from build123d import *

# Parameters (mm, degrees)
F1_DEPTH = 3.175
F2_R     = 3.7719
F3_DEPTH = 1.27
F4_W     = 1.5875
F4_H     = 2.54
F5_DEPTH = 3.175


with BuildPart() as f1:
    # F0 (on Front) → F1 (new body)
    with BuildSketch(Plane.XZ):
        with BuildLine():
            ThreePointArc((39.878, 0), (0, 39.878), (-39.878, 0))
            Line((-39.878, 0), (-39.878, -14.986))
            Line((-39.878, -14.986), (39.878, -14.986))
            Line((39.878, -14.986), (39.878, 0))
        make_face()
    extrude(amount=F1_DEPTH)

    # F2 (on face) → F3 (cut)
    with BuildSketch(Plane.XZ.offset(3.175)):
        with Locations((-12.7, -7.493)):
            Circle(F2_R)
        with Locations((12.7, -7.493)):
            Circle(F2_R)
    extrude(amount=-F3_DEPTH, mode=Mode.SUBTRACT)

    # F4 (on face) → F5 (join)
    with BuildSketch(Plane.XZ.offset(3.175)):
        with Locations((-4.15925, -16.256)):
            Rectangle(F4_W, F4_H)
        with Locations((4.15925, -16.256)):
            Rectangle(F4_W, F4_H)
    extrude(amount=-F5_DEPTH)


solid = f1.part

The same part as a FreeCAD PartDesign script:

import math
import FreeCAD as App
import Part
import Sketcher
from FreeCAD import Vector
Q = App.Units.Quantity

doc = App.newDocument("Part")
params = doc.addObject("Spreadsheet::Sheet", "Params")
for row, (alias, value) in enumerate([
    ("sketch1_radius", "1.57 in"),
    ("sketch1_height", "0.59 in"),
    ("pad1_length", "0.125 in"),
    ("sketch2_diameter", "0.297 in"),
    ("pocket1_length", "0.05 in"),
    ("sketch3_height", "0.1 in"),
    ("sketch3_width", "0.0625 in"),
    ("pad2_length", "0.125 in"),
], start=1):
    params.set(f"A{row}", alias)
    params.set(f"B{row}", "=" + value)
    params.setAlias(f"B{row}", alias)

body = doc.addObject("PartDesign::Body", "Body")

sketch1 = doc.addObject("Sketcher::SketchObject", "Sketch")
body.addObject(sketch1)
sketch1.AttachmentSupport = (doc.XZ_Plane, [""])
sketch1.MapMode = "FlatFace"
sketch1.addGeometry(Part.ArcOfCircle(Part.Circle(Vector(0, 0, 0), Vector(0, 0, 1), 40), math.radians(0), math.radians(180)), False)
sketch1.addGeometry(Part.LineSegment(Vector(-40, 0, 0), Vector(-40, -15, 0)), False)
sketch1.addGeometry(Part.LineSegment(Vector(-40, -15, 0), Vector(40, -15, 0)), False)
sketch1.addGeometry(Part.LineSegment(Vector(40, -15, 0), Vector(40, 0, 0)), False)
sketch1.addConstraint(Sketcher.Constraint("Tangent", 0, 2, 1, 1))
sketch1.addConstraint(Sketcher.Constraint("Coincident", 1, 2, 2, 1))
sketch1.addConstraint(Sketcher.Constraint("Coincident", 2, 2, 3, 1))
sketch1.addConstraint(Sketcher.Constraint("Tangent", 3, 2, 0, 1))
sketch1.addConstraint(Sketcher.Constraint("Vertical", 1))
sketch1.addConstraint(Sketcher.Constraint("Horizontal", 2))
sketch1.addConstraint(Sketcher.Constraint("Vertical", 3))
sketch1.addConstraint(Sketcher.Constraint("Coincident", 0, 3, -1, 1))
sketch1.addConstraint(Sketcher.Constraint("Radius", 0, Q("1.57 in")))
sketch1.addConstraint(Sketcher.Constraint("DistanceY", 1, 2, 1, 1, Q("0.59 in")))
sketch1.setExpression("Constraints[8]", "Params.sketch1_radius")
sketch1.setExpression("Constraints[9]", "Params.sketch1_height")
pad1 = doc.addObject("PartDesign::Pad", "Pad")
body.addObject(pad1)
pad1.Profile = sketch1
pad1.setExpression("Length", "Params.pad1_length")

sketch2 = doc.addObject("Sketcher::SketchObject", "Sketch001")
body.addObject(sketch2)
sketch2.AttachmentSupport = (doc.XZ_Plane, [""])
sketch2.MapMode = "FlatFace"
sketch2.AttachmentOffset = App.Placement(Vector(0, 0, 0.125 * 25.4), App.Rotation())
sketch2.addGeometry(Part.Circle(Vector(-12.7, -7.5, 0), Vector(0, 0, 1), 3.8), False)
sketch2.addGeometry(Part.Circle(Vector(12.7, -7.5, 0), Vector(0, 0, 1), 3.8), False)
sketch2.addConstraint(Sketcher.Constraint("Equal", 0, 1))
sketch2.addConstraint(Sketcher.Constraint("Symmetric", 0, 3, 1, 3, -2))
sketch2.addConstraint(Sketcher.Constraint("Diameter", 0, Q("0.297 in")))
sketch2.addConstraint(Sketcher.Constraint("DistanceX", 0, 3, 1, 3, Q("1 in")))
sketch2.addConstraint(Sketcher.Constraint("DistanceY", 0, 3, -1, 1, Q("0.295 in")))
sketch2.setExpression("Constraints[2]", "Params.sketch2_diameter")
pocket1 = doc.addObject("PartDesign::Pocket", "Pocket")
body.addObject(pocket1)
pocket1.Profile = sketch2
pocket1.setExpression("Length", "Params.pocket1_length")

sketch3 = doc.addObject("Sketcher::SketchObject", "Sketch002")
body.addObject(sketch3)
sketch3.AttachmentSupport = (doc.XZ_Plane, [""])
sketch3.MapMode = "FlatFace"
sketch3.AttachmentOffset = App.Placement(Vector(0, 0, 0.125 * 25.4), App.Rotation())
sketch3.addGeometry(Part.LineSegment(Vector(-5, -15, 0), Vector(-5, -17.5, 0)), False)
sketch3.addGeometry(Part.LineSegment(Vector(-5, -17.5, 0), Vector(-3.4, -17.5, 0)), False)
sketch3.addGeometry(Part.LineSegment(Vector(-3.4, -17.5, 0), Vector(-3.4, -15, 0)), False)
sketch3.addGeometry(Part.LineSegment(Vector(-3.4, -15, 0), Vector(-5, -15, 0)), False)
sketch3.addGeometry(Part.LineSegment(Vector(3.4, -15, 0), Vector(3.4, -17.5, 0)), False)
sketch3.addGeometry(Part.LineSegment(Vector(3.4, -17.5, 0), Vector(5, -17.5, 0)), False)
sketch3.addGeometry(Part.LineSegment(Vector(5, -17.5, 0), Vector(5, -15, 0)), False)
sketch3.addGeometry(Part.LineSegment(Vector(5, -15, 0), Vector(3.4, -15, 0)), False)
sketch3.addConstraint(Sketcher.Constraint("Coincident", 0, 2, 1, 1))
sketch3.addConstraint(Sketcher.Constraint("Coincident", 1, 2, 2, 1))
sketch3.addConstraint(Sketcher.Constraint("Coincident", 2, 2, 3, 1))
sketch3.addConstraint(Sketcher.Constraint("Coincident", 3, 2, 0, 1))
sketch3.addConstraint(Sketcher.Constraint("Coincident", 4, 2, 5, 1))
sketch3.addConstraint(Sketcher.Constraint("Coincident", 5, 2, 6, 1))
sketch3.addConstraint(Sketcher.Constraint("Coincident", 6, 2, 7, 1))
sketch3.addConstraint(Sketcher.Constraint("Coincident", 7, 2, 4, 1))
sketch3.addConstraint(Sketcher.Constraint("Vertical", 0))
sketch3.addConstraint(Sketcher.Constraint("Horizontal", 1))
sketch3.addConstraint(Sketcher.Constraint("Vertical", 2))
sketch3.addConstraint(Sketcher.Constraint("Horizontal", 3))
sketch3.addConstraint(Sketcher.Constraint("Vertical", 4))
sketch3.addConstraint(Sketcher.Constraint("Horizontal", 5))
sketch3.addConstraint(Sketcher.Constraint("Vertical", 6))
sketch3.addConstraint(Sketcher.Constraint("Horizontal", 7))
sketch3.addConstraint(Sketcher.Constraint("Symmetric", 1, 2, 4, 2, -2))
sketch3.addConstraint(Sketcher.Constraint("Symmetric", 3, 2, 6, 2, -2))
sketch3.addConstraint(Sketcher.Constraint("DistanceY", 0, 2, 0, 1, Q("0.1 in")))
sketch3.addConstraint(Sketcher.Constraint("DistanceX", 1, 1, 1, 2, Q("0.0625 in")))
sketch3.addConstraint(Sketcher.Constraint("DistanceY", 0, 2, -1, 1, Q("0.69 in")))
sketch3.addConstraint(Sketcher.Constraint("DistanceX", 0, 2, 5, 2, Q("0.39 in")))
sketch3.setExpression("Constraints[18]", "Params.sketch3_height")
sketch3.setExpression("Constraints[19]", "Params.sketch3_width")
pad2 = doc.addObject("PartDesign::Pad", "Pad001")
body.addObject(pad2)
pad2.Profile = sketch3
pad2.setExpression("Length", "Params.pad2_length")
pad2.Reversed = True

doc.recompute()
